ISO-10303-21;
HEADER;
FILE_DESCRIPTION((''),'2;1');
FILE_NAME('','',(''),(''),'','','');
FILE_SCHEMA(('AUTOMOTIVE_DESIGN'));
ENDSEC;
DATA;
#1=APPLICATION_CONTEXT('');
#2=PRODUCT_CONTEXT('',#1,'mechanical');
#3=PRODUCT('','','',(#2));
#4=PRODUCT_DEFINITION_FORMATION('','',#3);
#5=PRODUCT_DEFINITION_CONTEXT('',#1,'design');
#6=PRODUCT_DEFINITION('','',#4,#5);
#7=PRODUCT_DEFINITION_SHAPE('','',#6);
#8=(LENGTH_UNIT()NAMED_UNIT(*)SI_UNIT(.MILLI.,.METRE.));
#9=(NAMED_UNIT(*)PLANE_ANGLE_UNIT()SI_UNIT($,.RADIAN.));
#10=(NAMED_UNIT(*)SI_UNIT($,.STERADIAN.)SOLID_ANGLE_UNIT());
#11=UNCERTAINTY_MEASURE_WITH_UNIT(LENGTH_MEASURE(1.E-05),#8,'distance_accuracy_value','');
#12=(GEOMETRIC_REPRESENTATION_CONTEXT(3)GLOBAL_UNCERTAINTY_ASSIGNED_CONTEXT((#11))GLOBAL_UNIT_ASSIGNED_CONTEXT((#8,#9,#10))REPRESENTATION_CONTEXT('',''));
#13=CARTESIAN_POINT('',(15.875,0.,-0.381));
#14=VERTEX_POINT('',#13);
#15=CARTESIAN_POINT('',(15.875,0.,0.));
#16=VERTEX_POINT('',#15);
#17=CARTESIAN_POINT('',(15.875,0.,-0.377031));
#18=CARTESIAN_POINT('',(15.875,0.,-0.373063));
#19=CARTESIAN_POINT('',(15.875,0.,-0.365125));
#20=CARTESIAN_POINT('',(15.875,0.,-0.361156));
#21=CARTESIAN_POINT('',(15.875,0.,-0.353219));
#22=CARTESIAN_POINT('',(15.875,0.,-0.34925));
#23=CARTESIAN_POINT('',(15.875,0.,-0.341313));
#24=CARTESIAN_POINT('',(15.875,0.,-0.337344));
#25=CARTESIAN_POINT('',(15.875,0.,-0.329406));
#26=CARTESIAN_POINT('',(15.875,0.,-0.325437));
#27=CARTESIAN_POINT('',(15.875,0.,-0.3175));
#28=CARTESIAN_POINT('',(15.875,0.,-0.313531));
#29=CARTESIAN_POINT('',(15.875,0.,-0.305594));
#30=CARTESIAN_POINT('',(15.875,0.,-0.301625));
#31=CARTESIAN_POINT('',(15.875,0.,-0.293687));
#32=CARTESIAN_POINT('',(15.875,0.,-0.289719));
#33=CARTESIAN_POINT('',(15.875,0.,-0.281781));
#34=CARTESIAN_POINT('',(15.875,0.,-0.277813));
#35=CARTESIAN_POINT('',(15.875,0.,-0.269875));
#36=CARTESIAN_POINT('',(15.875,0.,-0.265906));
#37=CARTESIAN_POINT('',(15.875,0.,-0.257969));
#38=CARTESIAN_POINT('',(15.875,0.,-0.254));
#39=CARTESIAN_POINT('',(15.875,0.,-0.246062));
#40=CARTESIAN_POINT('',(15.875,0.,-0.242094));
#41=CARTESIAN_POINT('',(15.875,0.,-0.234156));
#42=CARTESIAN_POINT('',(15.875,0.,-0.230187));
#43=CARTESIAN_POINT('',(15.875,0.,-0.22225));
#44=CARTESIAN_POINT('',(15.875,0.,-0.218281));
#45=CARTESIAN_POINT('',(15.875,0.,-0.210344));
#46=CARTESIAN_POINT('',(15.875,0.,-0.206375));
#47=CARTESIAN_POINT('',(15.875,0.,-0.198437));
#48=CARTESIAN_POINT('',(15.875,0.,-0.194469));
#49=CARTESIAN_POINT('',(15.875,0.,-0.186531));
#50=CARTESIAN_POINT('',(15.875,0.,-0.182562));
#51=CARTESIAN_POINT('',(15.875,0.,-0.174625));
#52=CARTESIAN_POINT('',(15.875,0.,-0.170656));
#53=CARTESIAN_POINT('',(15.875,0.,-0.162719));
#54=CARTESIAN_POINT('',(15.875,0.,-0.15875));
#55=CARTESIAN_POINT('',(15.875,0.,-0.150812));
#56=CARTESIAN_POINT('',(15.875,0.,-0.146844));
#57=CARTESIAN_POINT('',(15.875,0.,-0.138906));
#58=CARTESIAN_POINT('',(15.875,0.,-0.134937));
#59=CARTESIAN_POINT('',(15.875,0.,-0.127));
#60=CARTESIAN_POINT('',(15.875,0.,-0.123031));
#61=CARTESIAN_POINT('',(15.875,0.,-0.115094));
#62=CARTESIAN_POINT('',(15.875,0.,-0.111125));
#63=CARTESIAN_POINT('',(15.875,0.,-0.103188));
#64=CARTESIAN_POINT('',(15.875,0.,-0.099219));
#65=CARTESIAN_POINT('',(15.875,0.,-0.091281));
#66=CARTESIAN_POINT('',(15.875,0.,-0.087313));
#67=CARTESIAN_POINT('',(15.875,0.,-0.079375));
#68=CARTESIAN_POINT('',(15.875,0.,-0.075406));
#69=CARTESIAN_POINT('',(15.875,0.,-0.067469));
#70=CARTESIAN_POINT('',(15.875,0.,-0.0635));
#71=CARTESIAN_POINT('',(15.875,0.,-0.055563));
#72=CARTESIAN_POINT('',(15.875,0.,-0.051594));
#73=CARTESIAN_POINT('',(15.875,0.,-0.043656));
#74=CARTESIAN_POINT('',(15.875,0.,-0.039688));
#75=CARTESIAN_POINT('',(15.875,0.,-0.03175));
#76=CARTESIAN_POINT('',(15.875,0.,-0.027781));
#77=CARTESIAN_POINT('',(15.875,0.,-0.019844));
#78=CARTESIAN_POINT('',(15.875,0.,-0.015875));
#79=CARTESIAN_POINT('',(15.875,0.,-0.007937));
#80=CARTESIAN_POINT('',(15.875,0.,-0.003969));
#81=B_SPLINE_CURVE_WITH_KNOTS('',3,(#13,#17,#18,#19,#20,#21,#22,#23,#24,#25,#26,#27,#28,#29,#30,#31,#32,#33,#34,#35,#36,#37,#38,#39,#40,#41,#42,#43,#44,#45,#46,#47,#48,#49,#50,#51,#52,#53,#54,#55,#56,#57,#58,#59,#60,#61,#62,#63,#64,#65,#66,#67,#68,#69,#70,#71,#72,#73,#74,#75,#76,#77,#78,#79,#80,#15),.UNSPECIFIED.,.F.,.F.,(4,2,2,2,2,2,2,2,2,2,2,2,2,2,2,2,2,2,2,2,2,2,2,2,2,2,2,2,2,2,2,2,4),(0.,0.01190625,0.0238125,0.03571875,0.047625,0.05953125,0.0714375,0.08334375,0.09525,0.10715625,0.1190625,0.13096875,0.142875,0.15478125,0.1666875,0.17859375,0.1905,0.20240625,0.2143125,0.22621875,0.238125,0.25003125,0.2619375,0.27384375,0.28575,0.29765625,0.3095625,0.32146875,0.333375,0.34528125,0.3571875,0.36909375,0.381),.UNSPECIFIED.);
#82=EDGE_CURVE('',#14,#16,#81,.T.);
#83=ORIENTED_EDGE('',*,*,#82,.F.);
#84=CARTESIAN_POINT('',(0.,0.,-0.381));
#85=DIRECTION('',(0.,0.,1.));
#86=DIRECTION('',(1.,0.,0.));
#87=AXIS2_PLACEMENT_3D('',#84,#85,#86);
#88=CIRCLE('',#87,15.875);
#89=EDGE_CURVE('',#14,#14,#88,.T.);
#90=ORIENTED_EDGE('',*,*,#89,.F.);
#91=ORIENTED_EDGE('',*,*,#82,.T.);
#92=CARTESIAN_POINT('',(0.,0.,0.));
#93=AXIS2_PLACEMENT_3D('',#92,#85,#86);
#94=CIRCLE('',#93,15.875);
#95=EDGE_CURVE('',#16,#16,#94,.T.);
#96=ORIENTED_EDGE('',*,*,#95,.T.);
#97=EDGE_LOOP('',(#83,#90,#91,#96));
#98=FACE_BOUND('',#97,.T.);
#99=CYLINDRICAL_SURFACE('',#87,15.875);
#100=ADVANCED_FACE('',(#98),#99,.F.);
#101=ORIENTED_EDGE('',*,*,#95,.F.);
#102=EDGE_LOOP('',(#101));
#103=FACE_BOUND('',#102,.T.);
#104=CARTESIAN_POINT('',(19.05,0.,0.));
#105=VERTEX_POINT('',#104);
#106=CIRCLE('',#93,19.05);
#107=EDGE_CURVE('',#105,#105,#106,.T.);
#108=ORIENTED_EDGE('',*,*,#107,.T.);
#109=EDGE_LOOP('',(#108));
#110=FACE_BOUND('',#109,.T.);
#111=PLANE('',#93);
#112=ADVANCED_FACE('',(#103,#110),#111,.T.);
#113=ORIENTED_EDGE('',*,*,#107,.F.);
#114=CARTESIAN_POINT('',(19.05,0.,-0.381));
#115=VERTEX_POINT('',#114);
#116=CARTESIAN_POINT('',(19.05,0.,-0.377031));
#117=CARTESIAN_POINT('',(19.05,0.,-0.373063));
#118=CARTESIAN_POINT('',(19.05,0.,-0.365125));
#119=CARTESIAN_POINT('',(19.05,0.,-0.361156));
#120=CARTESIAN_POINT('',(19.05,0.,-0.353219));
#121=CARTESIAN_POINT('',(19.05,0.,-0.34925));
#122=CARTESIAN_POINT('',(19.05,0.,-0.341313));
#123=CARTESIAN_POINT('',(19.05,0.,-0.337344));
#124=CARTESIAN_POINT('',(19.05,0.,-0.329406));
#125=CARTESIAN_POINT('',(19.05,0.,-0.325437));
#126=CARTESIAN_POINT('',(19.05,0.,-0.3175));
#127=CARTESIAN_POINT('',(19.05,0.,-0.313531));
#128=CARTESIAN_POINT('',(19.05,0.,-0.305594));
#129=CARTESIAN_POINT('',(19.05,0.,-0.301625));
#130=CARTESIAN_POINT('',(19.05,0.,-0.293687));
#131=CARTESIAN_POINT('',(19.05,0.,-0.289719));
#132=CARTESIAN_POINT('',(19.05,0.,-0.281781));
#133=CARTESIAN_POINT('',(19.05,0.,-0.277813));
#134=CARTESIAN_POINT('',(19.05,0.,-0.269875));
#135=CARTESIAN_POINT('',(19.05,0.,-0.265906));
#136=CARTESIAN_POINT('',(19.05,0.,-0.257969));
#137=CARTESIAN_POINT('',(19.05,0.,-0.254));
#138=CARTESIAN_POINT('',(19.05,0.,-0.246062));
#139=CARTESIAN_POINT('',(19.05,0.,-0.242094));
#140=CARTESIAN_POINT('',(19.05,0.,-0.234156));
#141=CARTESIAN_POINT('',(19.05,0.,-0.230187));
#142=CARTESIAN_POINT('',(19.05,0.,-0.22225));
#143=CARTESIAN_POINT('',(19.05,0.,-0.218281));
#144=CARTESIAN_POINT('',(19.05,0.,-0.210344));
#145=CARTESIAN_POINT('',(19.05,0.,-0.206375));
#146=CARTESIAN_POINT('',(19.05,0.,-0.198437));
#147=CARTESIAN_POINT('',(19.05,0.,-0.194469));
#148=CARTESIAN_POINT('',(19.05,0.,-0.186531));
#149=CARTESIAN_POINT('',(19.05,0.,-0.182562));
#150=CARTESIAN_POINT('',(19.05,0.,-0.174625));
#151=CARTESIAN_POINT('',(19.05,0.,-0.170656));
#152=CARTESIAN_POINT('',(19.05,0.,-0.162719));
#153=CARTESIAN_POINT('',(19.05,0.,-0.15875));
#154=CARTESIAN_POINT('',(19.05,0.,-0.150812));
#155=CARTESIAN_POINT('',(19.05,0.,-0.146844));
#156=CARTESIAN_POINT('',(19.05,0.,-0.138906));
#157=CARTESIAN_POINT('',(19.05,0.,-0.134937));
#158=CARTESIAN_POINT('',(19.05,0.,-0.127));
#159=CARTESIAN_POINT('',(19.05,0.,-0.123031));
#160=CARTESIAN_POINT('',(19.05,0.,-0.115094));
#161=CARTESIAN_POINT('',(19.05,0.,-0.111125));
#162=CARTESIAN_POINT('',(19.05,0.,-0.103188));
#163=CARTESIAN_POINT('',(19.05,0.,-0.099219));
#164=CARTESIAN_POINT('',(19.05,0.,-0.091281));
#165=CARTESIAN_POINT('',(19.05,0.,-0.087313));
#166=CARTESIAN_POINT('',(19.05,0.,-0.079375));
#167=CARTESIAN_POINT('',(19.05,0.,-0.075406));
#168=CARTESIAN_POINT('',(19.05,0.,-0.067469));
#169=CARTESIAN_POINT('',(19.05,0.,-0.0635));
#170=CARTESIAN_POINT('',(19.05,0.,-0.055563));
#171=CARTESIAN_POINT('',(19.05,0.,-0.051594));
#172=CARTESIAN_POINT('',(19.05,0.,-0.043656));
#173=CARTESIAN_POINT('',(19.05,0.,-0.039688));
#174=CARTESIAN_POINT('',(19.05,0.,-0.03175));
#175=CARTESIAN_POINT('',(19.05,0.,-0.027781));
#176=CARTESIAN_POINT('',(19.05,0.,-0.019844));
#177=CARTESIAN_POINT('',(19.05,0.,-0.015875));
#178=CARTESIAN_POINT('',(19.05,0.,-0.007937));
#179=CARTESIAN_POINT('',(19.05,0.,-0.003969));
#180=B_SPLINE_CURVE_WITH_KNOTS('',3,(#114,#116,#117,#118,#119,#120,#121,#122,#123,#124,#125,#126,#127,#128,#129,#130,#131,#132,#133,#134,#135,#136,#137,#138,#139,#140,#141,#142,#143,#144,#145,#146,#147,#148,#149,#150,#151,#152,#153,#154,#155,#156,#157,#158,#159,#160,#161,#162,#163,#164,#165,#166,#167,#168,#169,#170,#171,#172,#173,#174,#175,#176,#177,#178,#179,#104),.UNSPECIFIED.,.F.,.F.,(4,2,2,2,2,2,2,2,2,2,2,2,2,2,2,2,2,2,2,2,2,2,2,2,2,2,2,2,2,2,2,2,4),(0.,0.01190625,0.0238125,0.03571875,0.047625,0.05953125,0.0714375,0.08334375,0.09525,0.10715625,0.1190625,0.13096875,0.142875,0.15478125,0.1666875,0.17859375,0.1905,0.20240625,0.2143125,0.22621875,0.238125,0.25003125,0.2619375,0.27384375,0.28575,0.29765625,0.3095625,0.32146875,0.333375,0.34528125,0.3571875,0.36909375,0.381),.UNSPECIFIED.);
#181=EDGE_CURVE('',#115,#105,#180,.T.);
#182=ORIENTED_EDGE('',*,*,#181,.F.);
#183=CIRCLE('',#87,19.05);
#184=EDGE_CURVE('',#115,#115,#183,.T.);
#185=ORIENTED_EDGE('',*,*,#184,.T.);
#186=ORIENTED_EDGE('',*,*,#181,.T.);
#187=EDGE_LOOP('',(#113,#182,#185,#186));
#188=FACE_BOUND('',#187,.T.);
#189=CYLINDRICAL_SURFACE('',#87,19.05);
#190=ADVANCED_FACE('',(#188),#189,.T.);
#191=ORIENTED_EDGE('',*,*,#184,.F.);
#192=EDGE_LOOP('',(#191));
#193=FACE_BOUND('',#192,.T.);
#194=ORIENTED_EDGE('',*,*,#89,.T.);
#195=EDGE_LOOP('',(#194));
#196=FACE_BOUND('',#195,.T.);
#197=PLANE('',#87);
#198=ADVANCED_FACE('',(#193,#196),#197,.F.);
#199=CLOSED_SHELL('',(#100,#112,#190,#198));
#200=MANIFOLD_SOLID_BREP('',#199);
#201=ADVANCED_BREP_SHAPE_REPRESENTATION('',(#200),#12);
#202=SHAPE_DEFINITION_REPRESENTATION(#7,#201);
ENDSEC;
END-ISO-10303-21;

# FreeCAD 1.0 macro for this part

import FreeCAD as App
import Part
import Sketcher
Q = App.Units.Quantity

doc = App.newDocument("Part")
body = doc.addObject("PartDesign::Body", "Body")

# Sketch on XY plane
sketch1 = body.newObject("Sketcher::SketchObject", "Sketch")
sketch1.AttachmentSupport = (doc.getObject("XY_Plane"), [""])
sketch1.MapMode = "FlatFace"
sketch1.addGeometry([
    Part.Circle(App.Vector(0, 0, 0), App.Vector(0, 0, 1), 19),
    Part.Circle(App.Vector(0, 0, 0), App.Vector(0, 0, 1), 16),
], False)
sketch1.addConstraint([
    Sketcher.Constraint("Coincident", 0, 3, -1, 1),
    Sketcher.Constraint("Coincident", 1, 3, -1, 1),
    Sketcher.Constraint("Diameter", 0, Q("1.5 in")),
    Sketcher.Constraint("Diameter", 1, Q("1.25 in")),
])
pad1 = body.newObject("PartDesign::Pad", "Pad")
pad1.Profile = sketch1
pad1.Length = Q("0.015 in")
pad1.Reversed = True

doc.recompute()
